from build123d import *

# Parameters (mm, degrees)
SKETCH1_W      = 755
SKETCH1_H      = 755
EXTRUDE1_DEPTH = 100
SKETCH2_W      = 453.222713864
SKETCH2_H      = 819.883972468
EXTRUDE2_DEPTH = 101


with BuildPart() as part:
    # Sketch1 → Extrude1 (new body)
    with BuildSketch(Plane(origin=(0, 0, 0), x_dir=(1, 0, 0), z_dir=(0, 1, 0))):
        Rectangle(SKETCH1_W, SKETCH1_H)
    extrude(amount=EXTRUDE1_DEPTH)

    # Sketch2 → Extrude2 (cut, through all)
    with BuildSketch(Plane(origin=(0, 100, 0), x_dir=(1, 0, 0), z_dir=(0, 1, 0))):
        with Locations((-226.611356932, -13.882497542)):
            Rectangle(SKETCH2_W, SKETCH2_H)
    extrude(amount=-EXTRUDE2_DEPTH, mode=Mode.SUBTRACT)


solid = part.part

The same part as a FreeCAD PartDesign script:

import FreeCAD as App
import Part
import Sketcher
from FreeCAD import Vector
Q = App.Units.Quantity


def add_polygon(sketch, points):
    """Adds a closed chain of lines whose ends are joined by coincident constraints."""
    first, n = sketch.GeometryCount, len(points)
    for a, b in zip(points, points[1:] + points[:1]):
        sketch.addGeometry(Part.LineSegment(App.Vector(*a, 0), App.Vector(*b, 0)), False)
    for i in range(n):
        sketch.addConstraint(Sketcher.Constraint("Coincident", first + i, 2, first + (i + 1) % n, 1))

doc = App.newDocument("Part")
body = doc.addObject("PartDesign::Body", "Body")

# Sketch on XZ plane
sketch1 = doc.addObject("Sketcher::SketchObject", "Sketch")
body.addObject(sketch1)
sketch1.AttachmentSupport = (doc.XZ_Plane, [""])
sketch1.MapMode = "FlatFace"
add_polygon(sketch1, [(-378, -378), (-378, 378), (378, 378), (378, -378)])  # lines 0-3
sketch1.addConstraint(Sketcher.Constraint("Vertical", 0))
sketch1.addConstraint(Sketcher.Constraint("Horizontal", 1))
sketch1.addConstraint(Sketcher.Constraint("Vertical", 2))
sketch1.addConstraint(Sketcher.Constraint("Horizontal", 3))
sketch1.addConstraint(Sketcher.Constraint("Symmetric", 0, 2, 2, 2, -1, 1))
sketch1.addConstraint(Sketcher.Constraint("Equal", 3, 0))
sketch1.addConstraint(Sketcher.Constraint("DistanceX", 1, 1, 1, 2, Q("755 mm")))
pad1 = doc.addObject("PartDesign::Pad", "Pad")
body.addObject(pad1)
pad1.Profile = sketch1
pad1.Length = 100
pad1.Reversed = True

# Sketch on XZ plane
sketch2 = doc.addObject("Sketcher::SketchObject", "Sketch001")
body.addObject(sketch2)
sketch2.AttachmentSupport = (doc.XZ_Plane, [""])
sketch2.MapMode = "FlatFace"
sketch2.AttachmentOffset = App.Placement(Vector(0, 0, -100), App.Rotation())
add_polygon(sketch2, [(-453, -396), (-453, 424), (0, 424), (0, -396)])  # lines 0-3
sketch2.addConstraint(Sketcher.Constraint("Vertical", 0))
sketch2.addConstraint(Sketcher.Constraint("Horizontal", 1))
sketch2.addConstraint(Sketcher.Constraint("Vertical", 2))
sketch2.addConstraint(Sketcher.Constraint("Horizontal", 3))
sketch2.addConstraint(Sketcher.Constraint("PointOnObject", 1, 2, -2))
sketch2.addConstraint(Sketcher.Constraint("DistanceX", 1, 1, 1, 2, Q("453.222714 mm")))
sketch2.addConstraint(Sketcher.Constraint("DistanceY", 0, 1, 0, 2, Q("819.883972 mm")))
sketch2.addConstraint(Sketcher.Constraint("DistanceY", 2, 2, -1, 1, Q("396.059489 mm")))
pocket1 = doc.addObject("PartDesign::Pocket", "Pocket")
body.addObject(pocket1)
pocket1.Profile = sketch2
pocket1.Type = "ThroughAll"
pocket1.Reversed = True

doc.recompute()
